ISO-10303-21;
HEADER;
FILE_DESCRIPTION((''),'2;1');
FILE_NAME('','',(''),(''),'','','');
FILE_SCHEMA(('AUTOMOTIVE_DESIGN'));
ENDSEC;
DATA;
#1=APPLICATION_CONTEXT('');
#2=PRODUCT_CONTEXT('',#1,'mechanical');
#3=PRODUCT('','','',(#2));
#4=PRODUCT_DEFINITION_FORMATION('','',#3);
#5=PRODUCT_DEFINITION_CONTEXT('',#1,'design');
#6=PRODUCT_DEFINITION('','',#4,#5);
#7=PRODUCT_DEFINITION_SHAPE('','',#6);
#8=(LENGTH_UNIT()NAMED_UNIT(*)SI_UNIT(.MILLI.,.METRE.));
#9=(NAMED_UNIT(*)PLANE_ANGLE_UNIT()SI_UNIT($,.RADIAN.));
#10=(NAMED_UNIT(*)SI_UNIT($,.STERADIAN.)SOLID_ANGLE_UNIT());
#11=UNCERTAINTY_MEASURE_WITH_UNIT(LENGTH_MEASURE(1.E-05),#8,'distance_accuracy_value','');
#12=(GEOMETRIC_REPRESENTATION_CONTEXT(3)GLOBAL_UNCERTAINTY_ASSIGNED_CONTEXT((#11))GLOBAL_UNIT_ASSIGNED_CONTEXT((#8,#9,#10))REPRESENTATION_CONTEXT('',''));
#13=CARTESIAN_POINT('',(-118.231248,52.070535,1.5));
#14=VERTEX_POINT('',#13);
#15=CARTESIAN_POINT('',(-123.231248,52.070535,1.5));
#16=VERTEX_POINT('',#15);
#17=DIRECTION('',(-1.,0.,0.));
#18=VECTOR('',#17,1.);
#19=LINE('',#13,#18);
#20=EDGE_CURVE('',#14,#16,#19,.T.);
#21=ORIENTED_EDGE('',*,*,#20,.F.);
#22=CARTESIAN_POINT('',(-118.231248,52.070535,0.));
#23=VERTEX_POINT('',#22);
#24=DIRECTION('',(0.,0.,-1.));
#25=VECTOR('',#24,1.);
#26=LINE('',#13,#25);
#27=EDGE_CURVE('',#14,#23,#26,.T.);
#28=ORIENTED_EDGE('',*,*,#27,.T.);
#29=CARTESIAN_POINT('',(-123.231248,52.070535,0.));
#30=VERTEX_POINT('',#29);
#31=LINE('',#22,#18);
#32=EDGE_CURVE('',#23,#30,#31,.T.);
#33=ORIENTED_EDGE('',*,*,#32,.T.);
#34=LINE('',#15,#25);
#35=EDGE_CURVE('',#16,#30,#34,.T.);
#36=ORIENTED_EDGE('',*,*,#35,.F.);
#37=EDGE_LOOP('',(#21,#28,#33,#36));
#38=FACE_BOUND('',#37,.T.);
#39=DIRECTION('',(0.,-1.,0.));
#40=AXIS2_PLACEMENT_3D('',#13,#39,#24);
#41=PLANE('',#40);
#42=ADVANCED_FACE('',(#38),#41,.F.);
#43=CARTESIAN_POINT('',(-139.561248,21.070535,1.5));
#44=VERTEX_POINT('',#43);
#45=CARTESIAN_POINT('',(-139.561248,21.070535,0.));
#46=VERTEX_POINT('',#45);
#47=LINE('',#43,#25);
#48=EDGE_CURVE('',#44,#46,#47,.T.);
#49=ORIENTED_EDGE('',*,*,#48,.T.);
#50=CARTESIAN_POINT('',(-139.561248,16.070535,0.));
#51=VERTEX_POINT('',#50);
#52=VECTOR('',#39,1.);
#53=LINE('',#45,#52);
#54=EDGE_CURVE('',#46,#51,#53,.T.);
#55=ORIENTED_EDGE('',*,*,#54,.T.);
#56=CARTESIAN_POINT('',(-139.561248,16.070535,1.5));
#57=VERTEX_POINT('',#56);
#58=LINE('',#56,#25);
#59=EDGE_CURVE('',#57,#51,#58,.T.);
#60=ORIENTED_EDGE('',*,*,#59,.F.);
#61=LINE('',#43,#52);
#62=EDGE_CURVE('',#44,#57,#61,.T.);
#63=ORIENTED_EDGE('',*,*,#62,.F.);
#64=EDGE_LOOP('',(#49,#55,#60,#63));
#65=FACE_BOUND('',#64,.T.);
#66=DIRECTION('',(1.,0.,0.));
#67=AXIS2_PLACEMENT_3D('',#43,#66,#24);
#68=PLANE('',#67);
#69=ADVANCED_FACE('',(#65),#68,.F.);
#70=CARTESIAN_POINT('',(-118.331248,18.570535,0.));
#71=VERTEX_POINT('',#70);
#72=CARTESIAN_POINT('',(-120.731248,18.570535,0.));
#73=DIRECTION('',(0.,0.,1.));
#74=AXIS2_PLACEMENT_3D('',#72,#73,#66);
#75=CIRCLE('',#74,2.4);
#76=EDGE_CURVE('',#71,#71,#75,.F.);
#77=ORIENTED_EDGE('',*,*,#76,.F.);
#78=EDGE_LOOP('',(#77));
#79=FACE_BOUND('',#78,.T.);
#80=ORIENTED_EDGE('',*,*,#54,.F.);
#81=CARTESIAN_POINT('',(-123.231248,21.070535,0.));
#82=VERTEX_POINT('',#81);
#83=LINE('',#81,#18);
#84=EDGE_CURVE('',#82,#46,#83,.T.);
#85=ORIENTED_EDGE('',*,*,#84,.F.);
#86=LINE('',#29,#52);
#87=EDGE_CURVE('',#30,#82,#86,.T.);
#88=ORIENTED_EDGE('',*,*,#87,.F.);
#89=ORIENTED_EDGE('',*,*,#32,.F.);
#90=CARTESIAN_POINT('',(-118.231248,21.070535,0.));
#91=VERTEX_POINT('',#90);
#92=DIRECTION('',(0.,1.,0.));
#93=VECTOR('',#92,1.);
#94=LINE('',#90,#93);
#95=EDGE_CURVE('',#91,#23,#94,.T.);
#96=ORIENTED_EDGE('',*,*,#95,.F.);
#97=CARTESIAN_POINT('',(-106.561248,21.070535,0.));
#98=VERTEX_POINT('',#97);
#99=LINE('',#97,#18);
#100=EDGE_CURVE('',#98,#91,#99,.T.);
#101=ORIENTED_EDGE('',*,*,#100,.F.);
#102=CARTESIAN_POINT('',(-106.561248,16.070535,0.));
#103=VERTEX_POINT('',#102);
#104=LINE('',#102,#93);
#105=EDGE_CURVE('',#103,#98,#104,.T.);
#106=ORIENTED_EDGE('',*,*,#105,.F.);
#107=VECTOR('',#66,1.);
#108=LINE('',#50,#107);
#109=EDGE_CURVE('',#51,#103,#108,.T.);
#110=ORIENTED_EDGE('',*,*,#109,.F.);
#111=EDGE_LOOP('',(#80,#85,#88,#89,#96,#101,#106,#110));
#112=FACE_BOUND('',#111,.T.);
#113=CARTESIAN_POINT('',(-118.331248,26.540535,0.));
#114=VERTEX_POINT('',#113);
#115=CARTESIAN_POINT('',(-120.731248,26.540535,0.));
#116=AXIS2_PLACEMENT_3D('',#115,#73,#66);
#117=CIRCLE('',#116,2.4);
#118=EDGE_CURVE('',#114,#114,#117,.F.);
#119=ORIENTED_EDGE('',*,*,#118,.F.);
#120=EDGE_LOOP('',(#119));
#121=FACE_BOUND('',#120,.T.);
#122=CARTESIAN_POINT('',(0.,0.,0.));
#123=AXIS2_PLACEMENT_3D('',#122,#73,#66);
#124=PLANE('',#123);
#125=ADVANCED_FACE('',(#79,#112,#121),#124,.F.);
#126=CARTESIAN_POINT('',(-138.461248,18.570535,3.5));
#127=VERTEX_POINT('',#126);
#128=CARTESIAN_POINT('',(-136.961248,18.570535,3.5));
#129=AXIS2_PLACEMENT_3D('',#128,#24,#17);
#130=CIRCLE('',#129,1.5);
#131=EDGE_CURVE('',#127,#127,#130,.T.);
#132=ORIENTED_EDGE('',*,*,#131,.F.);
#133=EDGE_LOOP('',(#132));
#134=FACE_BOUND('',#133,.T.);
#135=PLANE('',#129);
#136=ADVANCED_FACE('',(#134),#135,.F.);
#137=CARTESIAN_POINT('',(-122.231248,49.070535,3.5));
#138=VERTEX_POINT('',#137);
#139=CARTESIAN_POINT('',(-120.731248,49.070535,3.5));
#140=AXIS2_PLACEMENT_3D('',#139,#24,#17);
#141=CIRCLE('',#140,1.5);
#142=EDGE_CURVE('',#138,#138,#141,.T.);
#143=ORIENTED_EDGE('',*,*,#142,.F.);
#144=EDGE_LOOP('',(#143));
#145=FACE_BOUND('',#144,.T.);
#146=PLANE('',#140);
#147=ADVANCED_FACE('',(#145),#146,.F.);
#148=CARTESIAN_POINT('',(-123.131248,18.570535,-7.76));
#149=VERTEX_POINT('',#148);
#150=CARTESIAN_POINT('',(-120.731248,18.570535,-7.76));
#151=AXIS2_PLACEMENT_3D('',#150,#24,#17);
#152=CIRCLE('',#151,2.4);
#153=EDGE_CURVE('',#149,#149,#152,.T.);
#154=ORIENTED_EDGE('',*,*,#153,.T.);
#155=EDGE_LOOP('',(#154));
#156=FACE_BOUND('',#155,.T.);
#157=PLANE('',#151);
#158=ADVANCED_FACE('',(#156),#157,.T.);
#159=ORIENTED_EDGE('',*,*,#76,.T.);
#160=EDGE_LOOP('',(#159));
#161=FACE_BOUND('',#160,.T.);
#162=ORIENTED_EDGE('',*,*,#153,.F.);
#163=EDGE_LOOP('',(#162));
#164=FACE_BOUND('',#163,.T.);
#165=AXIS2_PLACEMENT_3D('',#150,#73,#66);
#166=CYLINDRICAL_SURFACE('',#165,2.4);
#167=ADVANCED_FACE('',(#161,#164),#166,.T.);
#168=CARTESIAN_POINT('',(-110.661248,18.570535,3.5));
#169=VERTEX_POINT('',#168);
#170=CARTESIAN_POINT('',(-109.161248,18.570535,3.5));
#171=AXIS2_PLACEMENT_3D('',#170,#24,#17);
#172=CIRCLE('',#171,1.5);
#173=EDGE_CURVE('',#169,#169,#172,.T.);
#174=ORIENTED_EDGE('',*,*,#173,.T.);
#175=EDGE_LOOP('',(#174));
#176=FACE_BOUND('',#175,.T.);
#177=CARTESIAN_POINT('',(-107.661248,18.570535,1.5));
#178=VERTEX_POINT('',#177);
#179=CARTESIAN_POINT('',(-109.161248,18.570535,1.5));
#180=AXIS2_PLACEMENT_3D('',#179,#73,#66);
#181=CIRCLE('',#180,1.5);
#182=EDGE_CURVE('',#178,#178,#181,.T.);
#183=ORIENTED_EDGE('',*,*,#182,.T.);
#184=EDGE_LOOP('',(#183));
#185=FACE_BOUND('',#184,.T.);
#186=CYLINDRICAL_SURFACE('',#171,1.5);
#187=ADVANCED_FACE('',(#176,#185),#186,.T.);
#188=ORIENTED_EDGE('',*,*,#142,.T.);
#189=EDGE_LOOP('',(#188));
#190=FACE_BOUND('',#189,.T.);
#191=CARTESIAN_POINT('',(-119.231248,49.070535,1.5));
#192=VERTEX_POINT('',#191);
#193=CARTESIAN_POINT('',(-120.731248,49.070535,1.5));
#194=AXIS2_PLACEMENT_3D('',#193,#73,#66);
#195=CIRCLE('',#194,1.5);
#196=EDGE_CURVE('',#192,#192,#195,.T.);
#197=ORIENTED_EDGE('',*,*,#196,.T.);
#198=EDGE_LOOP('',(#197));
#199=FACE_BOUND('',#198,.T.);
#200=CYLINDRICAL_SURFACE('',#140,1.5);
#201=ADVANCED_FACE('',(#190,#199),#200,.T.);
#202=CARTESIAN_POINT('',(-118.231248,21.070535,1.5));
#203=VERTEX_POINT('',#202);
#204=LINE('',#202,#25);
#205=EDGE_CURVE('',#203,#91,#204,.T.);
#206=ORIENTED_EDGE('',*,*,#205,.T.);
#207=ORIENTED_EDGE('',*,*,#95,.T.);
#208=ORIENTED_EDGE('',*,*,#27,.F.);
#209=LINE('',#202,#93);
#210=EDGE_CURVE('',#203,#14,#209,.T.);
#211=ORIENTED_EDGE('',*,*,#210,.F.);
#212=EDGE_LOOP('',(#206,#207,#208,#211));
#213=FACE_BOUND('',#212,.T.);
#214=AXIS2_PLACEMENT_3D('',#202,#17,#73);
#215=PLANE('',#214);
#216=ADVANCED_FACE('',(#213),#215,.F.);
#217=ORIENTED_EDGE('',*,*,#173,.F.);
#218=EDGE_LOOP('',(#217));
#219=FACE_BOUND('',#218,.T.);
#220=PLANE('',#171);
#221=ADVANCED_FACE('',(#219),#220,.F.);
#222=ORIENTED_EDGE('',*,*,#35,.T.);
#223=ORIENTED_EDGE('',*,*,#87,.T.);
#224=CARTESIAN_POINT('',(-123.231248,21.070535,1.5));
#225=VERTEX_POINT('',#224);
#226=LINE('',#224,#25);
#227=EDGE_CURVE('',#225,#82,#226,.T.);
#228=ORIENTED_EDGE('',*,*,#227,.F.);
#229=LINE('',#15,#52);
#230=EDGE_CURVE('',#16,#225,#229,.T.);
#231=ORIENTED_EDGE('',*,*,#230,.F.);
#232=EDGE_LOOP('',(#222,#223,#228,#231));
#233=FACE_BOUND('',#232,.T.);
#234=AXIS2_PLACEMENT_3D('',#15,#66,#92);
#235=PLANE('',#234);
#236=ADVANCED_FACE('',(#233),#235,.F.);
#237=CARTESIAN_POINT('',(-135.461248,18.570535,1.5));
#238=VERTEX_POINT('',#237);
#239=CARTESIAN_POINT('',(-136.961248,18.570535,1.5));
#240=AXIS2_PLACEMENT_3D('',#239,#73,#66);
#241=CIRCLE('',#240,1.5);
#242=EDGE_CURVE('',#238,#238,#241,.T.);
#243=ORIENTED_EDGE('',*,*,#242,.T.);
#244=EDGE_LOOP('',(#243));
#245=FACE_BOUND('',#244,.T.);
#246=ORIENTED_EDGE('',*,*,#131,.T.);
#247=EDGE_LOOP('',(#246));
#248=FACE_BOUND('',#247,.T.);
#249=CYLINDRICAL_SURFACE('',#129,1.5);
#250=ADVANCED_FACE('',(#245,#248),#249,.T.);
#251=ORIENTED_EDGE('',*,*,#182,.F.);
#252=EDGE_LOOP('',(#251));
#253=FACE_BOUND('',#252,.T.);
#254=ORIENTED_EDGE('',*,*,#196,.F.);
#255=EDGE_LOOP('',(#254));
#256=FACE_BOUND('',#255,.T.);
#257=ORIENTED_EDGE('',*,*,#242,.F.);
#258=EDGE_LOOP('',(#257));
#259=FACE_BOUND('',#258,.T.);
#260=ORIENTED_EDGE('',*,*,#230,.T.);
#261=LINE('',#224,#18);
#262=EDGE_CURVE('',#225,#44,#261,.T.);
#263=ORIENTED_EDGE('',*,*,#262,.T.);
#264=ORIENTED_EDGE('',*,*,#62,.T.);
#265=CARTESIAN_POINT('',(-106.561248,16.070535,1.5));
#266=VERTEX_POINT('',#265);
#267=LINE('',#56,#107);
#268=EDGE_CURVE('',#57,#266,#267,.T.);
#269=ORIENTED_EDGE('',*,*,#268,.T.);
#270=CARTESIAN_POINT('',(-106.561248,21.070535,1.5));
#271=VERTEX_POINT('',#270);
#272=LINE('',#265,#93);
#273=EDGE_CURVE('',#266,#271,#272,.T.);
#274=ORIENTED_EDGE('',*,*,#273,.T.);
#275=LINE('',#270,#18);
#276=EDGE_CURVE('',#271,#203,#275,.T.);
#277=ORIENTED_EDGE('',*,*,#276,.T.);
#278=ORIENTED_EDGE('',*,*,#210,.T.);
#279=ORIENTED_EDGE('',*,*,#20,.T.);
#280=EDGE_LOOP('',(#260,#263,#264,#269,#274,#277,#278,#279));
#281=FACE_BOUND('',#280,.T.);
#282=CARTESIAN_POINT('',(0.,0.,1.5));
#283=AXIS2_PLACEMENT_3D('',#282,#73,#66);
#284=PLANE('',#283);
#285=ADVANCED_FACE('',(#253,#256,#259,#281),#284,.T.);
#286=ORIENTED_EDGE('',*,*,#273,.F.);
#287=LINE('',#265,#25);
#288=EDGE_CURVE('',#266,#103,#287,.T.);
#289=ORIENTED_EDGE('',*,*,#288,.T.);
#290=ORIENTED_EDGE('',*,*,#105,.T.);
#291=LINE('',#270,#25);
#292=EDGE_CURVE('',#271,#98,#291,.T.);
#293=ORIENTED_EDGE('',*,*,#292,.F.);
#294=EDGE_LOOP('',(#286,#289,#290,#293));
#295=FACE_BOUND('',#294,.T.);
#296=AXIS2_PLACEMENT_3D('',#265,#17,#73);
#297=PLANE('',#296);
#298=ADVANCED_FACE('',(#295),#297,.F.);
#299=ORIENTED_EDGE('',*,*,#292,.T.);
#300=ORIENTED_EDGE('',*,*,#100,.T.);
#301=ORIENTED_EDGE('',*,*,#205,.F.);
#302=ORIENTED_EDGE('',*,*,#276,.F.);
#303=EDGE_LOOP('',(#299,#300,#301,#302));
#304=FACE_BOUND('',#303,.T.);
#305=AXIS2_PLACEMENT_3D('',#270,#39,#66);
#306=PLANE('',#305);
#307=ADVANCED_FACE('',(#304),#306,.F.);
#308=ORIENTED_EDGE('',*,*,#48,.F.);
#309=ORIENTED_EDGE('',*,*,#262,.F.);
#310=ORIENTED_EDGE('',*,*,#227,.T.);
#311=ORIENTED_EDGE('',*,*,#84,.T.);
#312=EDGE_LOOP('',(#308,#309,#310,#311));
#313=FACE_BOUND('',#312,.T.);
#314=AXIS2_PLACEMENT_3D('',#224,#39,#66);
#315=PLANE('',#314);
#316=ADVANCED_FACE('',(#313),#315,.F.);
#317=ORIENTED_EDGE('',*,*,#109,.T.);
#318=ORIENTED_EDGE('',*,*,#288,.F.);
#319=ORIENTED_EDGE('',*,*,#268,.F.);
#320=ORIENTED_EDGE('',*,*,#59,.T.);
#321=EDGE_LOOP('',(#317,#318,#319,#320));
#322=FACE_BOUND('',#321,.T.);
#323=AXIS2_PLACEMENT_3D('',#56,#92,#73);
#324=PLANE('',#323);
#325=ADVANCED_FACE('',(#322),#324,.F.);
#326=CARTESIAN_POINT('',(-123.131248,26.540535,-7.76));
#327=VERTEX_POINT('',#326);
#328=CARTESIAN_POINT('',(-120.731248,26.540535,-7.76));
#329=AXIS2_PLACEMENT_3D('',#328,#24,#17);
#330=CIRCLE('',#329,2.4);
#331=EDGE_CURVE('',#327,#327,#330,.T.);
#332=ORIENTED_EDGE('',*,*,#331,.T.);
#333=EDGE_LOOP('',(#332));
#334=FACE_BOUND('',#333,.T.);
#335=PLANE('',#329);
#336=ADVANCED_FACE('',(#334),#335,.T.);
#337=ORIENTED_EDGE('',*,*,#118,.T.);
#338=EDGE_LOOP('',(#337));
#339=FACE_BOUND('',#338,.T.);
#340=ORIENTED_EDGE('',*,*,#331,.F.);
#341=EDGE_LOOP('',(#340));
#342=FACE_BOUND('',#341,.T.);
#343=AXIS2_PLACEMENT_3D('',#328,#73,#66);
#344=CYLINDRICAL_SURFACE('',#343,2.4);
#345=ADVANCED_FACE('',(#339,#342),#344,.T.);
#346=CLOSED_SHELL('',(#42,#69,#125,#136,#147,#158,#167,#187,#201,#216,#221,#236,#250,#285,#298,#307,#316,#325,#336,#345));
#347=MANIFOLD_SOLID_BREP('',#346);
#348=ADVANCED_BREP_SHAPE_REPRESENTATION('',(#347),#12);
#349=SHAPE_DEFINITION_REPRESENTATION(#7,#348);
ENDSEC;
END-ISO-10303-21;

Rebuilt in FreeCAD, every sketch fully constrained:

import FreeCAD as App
import Part
import Sketcher
from FreeCAD import Vector

doc = App.newDocument("Part")
body = doc.addObject("PartDesign::Body", "Body")

# Sketch on XY plane
sketch1 = body.newObject("Sketcher::SketchObject", "Sketch")
sketch1.AttachmentSupport = (doc.getObject("XY_Plane"), [""])
sketch1.MapMode = "FlatFace"
sketch1.addGeometry([
    Part.LineSegment(Vector(-140, 16, 0), Vector(-107, 16, 0)),  # 0
    Part.LineSegment(Vector(-107, 16, 0), Vector(-107, 21, 0)),  # 1
    Part.LineSegment(Vector(-107, 21, 0), Vector(-118, 21, 0)),  # 2
    Part.LineSegment(Vector(-118, 21, 0), Vector(-118, 52, 0)),  # 3
    Part.LineSegment(Vector(-118, 52, 0), Vector(-123, 52, 0)),  # 4
    Part.LineSegment(Vector(-123, 52, 0), Vector(-123, 21, 0)),  # 5
    Part.LineSegment(Vector(-123, 21, 0), Vector(-140, 21, 0)),  # 6
    Part.LineSegment(Vector(-140, 21, 0), Vector(-140, 16, 0)),  # 7
], False)
sketch1.addConstraint([
    Sketcher.Constraint("Coincident", 0, 2, 1, 1),
    Sketcher.Constraint("Coincident", 1, 2, 2, 1),
    Sketcher.Constraint("Coincident", 2, 2, 3, 1),
    Sketcher.Constraint("Coincident", 3, 2, 4, 1),
    Sketcher.Constraint("Coincident", 4, 2, 5, 1),
    Sketcher.Constraint("Coincident", 5, 2, 6, 1),
    Sketcher.Constraint("Coincident", 6, 2, 7, 1),
    Sketcher.Constraint("Coincident", 7, 2, 0, 1),
    Sketcher.Constraint("Horizontal", 0),
    Sketcher.Constraint("Vertical", 1),
    Sketcher.Constraint("Horizontal", 2),
    Sketcher.Constraint("Vertical", 3),
    Sketcher.Constraint("Horizontal", 4),
    Sketcher.Constraint("Vertical", 5),
    Sketcher.Constraint("Horizontal", 6),
    Sketcher.Constraint("Vertical", 7),
    Sketcher.Constraint("Horizontal", 2, 2, 5, 2),
    Sketcher.Constraint("Equal", 4, 1),
    Sketcher.Constraint("DistanceX", 0, 1, 0, 2, 33.0),
    Sketcher.Constraint("DistanceX", 4, 2, 4, 1, 5.0),
    Sketcher.Constraint("DistanceY", 3, 1, 3, 2, 31.0),
    Sketcher.Constraint("DistanceX", 2, 2, 2, 1, 11.67),
    Sketcher.Constraint("DistanceX", 0, 2, -1, 1, 106.561248),
    Sketcher.Constraint("DistanceY", -1, 1, 0, 2, 16.070535),
])
pad1 = body.newObject("PartDesign::Pad", "Pad")
pad1.Profile = sketch1
pad1.Length = 1.5

# Sketch on XY plane
sketch2 = body.newObject("Sketcher::SketchObject", "Sketch001")
sketch2.AttachmentSupport = (doc.getObject("XY_Plane"), [""])
sketch2.MapMode = "FlatFace"
sketch2.addGeometry([
    Part.Circle(Vector(-137, 18.6, 0), Vector(0, 0, 1), 1.5),
    Part.Circle(Vector(-109.2, 18.6, 0), Vector(0, 0, 1), 1.5),
    Part.Circle(Vector(-120.7, 49.1, 0), Vector(0, 0, 1), 1.5),
], False)
sketch2.addConstraint([
    Sketcher.Constraint("Equal", 0, 1),
    Sketcher.Constraint("Equal", 1, 2),
    Sketcher.Constraint("Horizontal", 0, 3, 1, 3),
    Sketcher.Constraint("Diameter", 0, 3.0),
    Sketcher.Constraint("DistanceX", 0, 3, 1, 3, 27.8),
    Sketcher.Constraint("DistanceY", 1, 3, 2, 3, 30.5),
    Sketcher.Constraint("DistanceX", 2, 3, 1, 3, 11.57),
    Sketcher.Constraint("DistanceX", 0, 3, -1, 1, 136.961248),
    Sketcher.Constraint("DistanceY", -1, 1, 0, 3, 18.570535),
])
pad2 = body.newObject("PartDesign::Pad", "Pad001")
pad2.Profile = sketch2
pad2.Length = 3.5

# Sketch on XY plane
sketch3 = body.newObject("Sketcher::SketchObject", "Sketch002")
sketch3.AttachmentSupport = (doc.getObject("XY_Plane"), [""])
sketch3.MapMode = "FlatFace"
sketch3.addGeometry([
    Part.Circle(Vector(-120.7, 18.6, 0), Vector(0, 0, 1), 2.4),
    Part.Circle(Vector(-120.7, 26.5, 0), Vector(0, 0, 1), 2.4),
], False)
sketch3.addConstraint([
    Sketcher.Constraint("Equal", 0, 1),
    Sketcher.Constraint("Vertical", 0, 3, 1, 3),
    Sketcher.Constraint("Diameter", 0, 4.8),
    Sketcher.Constraint("DistanceY", 0, 3, 1, 3, 7.97),
    Sketcher.Constraint("DistanceX", 0, 3, -1, 1, 120.731248),
    Sketcher.Constraint("DistanceY", -1, 1, 0, 3, 18.570535),
])
pad3 = body.newObject("PartDesign::Pad", "Pad002")
pad3.Profile = sketch3
pad3.Length = 7.76
pad3.Reversed = True

doc.recompute()
